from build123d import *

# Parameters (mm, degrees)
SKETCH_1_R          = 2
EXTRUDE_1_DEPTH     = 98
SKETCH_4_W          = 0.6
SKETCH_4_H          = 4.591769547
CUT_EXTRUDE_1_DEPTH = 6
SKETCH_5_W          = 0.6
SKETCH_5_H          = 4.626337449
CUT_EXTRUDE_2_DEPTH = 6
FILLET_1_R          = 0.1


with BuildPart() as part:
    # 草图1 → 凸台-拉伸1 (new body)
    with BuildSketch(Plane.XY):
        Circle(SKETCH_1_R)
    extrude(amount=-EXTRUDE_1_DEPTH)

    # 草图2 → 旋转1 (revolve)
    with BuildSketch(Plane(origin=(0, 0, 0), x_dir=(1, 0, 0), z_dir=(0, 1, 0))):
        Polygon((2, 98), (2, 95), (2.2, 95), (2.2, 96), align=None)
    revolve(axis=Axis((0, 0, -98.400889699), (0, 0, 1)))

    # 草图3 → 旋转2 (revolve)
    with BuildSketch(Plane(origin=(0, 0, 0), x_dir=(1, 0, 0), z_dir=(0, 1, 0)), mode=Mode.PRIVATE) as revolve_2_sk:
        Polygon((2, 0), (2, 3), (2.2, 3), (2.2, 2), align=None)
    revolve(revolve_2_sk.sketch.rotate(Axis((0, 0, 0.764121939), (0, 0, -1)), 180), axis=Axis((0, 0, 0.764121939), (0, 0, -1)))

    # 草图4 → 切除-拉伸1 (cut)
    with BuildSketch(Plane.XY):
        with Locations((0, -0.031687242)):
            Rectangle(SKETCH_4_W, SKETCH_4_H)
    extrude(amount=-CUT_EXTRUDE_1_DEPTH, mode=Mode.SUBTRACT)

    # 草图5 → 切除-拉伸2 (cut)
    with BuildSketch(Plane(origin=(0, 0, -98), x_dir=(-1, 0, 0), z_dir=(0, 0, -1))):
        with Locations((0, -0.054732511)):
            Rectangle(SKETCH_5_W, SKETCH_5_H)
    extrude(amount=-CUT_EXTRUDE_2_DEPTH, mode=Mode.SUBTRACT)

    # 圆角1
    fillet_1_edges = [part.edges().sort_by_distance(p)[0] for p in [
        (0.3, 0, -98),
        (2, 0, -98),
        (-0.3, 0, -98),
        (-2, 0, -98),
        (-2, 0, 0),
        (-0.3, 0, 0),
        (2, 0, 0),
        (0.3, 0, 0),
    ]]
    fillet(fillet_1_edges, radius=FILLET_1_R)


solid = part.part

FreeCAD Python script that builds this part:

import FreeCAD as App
import Part
import Sketcher
from FreeCAD import Vector


def edges_at(feature, points):
    """Names of the edges that pass closest to the given points."""
    edges = feature.Shape.Edges
    near = lambda p: min(range(len(edges)), key=lambda i: edges[i].distToShape(Part.Vertex(*p))[0])
    return sorted({f"Edge{near(p) + 1}" for p in points})


def add_polygon(sketch, points):
    """Adds a closed chain of lines whose ends are joined by coincident constraints."""
    first, n = sketch.GeometryCount, len(points)
    for a, b in zip(points, points[1:] + points[:1]):
        sketch.addGeometry(Part.LineSegment(App.Vector(*a, 0), App.Vector(*b, 0)), False)
    for i in range(n):
        sketch.addConstraint(Sketcher.Constraint("Coincident", first + i, 2, first + (i + 1) % n, 1))

doc = App.newDocument("Part")
body = doc.addObject("PartDesign::Body", "Body")

sketch1 = body.newObject("Sketcher::SketchObject", "Sketch")
sketch1.AttachmentSupport = (doc.getObject("XY_Plane"), [""])
sketch1.MapMode = "FlatFace"
sketch1.addGeometry(Part.Circle(Vector(0, 0, 0), Vector(0, 0, 1), 2), False)
sketch1.addConstraint([
    Sketcher.Constraint("Coincident", 0, 3, -1, 1),
    Sketcher.Constraint("Diameter", 0, 4.0),
])
pad1 = body.newObject("PartDesign::Pad", "Pad")
pad1.Profile = sketch1
pad1.Length = 98
pad1.Reversed = True

sketch2 = body.newObject("Sketcher::SketchObject", "Sketch001")
sketch2.AttachmentSupport = (doc.getObject("XZ_Plane"), [""])
sketch2.MapMode = "FlatFace"
add_polygon(sketch2, [(2, -98), (2, -95), (2.2, -95), (2.2, -96)])
sketch2.addConstraint([
    Sketcher.Constraint("Vertical", 0),
    Sketcher.Constraint("Horizontal", 1),
    Sketcher.Constraint("Vertical", 2),
    Sketcher.Constraint("DistanceY", 0, 1, 0, 2, 3.0),
    Sketcher.Constraint("DistanceY", 2, 2, 2, 1, 1.0),
    Sketcher.Constraint("DistanceX", 1, 1, 1, 2, 0.2),
    Sketcher.Constraint("DistanceX", -1, 1, 0, 2, 2.0),
    Sketcher.Constraint("DistanceY", 0, 2, -1, 1, 95.0),
])
revolution = body.newObject("PartDesign::Revolution", "Revolution")
revolution.Profile = sketch2
revolution.ReferenceAxis = (sketch2, ["V_Axis"])
revolution.Angle = 360

sketch3 = body.newObject("Sketcher::SketchObject", "Sketch002")
sketch3.AttachmentSupport = (doc.getObject("XZ_Plane"), [""])
sketch3.MapMode = "FlatFace"
add_polygon(sketch3, [(2, -3), (2, 0), (2.2, -2), (2.2, -3)])
sketch3.addConstraint([
    Sketcher.Constraint("Vertical", 0),
    Sketcher.Constraint("Vertical", 2),
    Sketcher.Constraint("Horizontal", 3),
    Sketcher.Constraint("PointOnObject", 0, 2, -1),
    Sketcher.Constraint("DistanceY", 0, 1, 0, 2, 3.0),
    Sketcher.Constraint("DistanceY", 2, 2, 2, 1, 1.0),
    Sketcher.Constraint("DistanceX", 3, 2, 3, 1, 0.2),
    Sketcher.Constraint("DistanceX", -1, 1, 0, 2, 2.0),
])
revolution2 = body.newObject("PartDesign::Revolution", "Revolution001")
revolution2.Profile = sketch3
revolution2.ReferenceAxis = (sketch3, ["V_Axis"])
revolution2.Angle = 360

sketch4 = body.newObject("Sketcher::SketchObject", "Sketch003")
sketch4.AttachmentSupport = (doc.getObject("XY_Plane"), [""])
sketch4.MapMode = "FlatFace"
add_polygon(sketch4, [(-0.3, 2.3), (-0.3, -2.3), (0.3, -2.3), (0.3, 2.3)])
sketch4.addConstraint([
    Sketcher.Constraint("Vertical", 0),
    Sketcher.Constraint("Horizontal", 1),
    Sketcher.Constraint("Vertical", 2),
    Sketcher.Constraint("Horizontal", 3),
    Sketcher.Constraint("DistanceX", 1, 1, 1, 2, 0.6),
    Sketcher.Constraint("DistanceX", 0, 2, -1, 1, 0.3),
    Sketcher.Constraint("DistanceY", 0, 2, 0, 1, 4.59177),
    Sketcher.Constraint("DistanceY", 0, 2, -1, 1, 2.327572),
])
pocket1 = body.newObject("PartDesign::Pocket", "Pocket")
pocket1.Profile = sketch4
pocket1.Length = 6

sketch5 = body.newObject("Sketcher::SketchObject", "Sketch004")
sketch5.AttachmentSupport = (doc.getObject("XY_Plane"), [""])
sketch5.MapMode = "FlatFace"
sketch5.AttachmentOffset = App.Placement(Vector(0, 0, -98), App.Rotation())
add_polygon(sketch5, [(0.3, 2.3), (0.3, -2.4), (-0.3, -2.4), (-0.3, 2.3)])
sketch5.addConstraint([
    Sketcher.Constraint("Vertical", 0),
    Sketcher.Constraint("Horizontal", 1),
    Sketcher.Constraint("Vertical", 2),
    Sketcher.Constraint("Horizontal", 3),
    Sketcher.Constraint("DistanceX", 1, 2, 1, 1, 0.6),
    Sketcher.Constraint("DistanceX", -1, 1, 0, 2, 0.3),
    Sketcher.Constraint("DistanceY", 0, 2, -1, 1, 2.367901),
    Sketcher.Constraint("DistanceY", 0, 2, 0, 1, 4.626337),
])
pocket2 = body.newObject("PartDesign::Pocket", "Pocket001")
pocket2.Profile = sketch5
pocket2.Length = 6
pocket2.Reversed = True
doc.recompute()

fillet = body.newObject("PartDesign::Fillet", "Fillet")
fillet.Base = (pocket2, edges_at(pocket2, [
    (0.3, 0, -98),
    (2, 0, -98),
    (-0.3, 0, -98),
    (-2, 0, -98),
    (-2, 0, 0),
    (-0.3, 0, 0),
    (2, 0, 0),
    (0.3, 0, 0),
]))
fillet.Radius = 0.1

doc.recompute()
